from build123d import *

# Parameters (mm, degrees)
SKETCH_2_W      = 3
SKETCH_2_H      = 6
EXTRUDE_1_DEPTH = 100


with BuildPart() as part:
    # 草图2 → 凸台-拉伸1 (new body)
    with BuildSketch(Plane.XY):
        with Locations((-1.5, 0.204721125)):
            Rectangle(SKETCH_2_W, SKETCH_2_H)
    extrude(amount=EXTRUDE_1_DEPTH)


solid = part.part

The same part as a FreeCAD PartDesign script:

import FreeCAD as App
import Part
import Sketcher
from FreeCAD import Vector


def add_polygon(sketch, points):
    """Adds a closed chain of lines whose ends are joined by coincident constraints."""
    first, n = sketch.GeometryCount, len(points)
    for a, b in zip(points, points[1:] + points[:1]):
        sketch.addGeometry(Part.LineSegment(App.Vector(*a, 0), App.Vector(*b, 0)), False)
    for i in range(n):
        sketch.addConstraint(Sketcher.Constraint("Coincident", first + i, 2, first + (i + 1) % n, 1))

doc = App.newDocument("Part")
params = doc.addObject("Spreadsheet::Sheet", "Params")
for row, (alias, value) in enumerate([
    ("sketch1_width", "3 mm"),
    ("sketch1_height", "6 mm"),
    ("pad1_length", "100 mm"),
], start=1):
    params.set(f"A{row}", alias)
    params.set(f"B{row}", "=" + value)
    params.setAlias(f"B{row}", alias)

body = doc.addObject("PartDesign::Body", "Body")

sketch1 = body.newObject("Sketcher::SketchObject", "Sketch")
sketch1.AttachmentSupport = (doc.getObject("XY_Plane"), [""])
sketch1.MapMode = "FlatFace"
add_polygon(sketch1, [(-3, 3.2), (-3, -2.8), (0, -2.8), (0, 3.2)])
sketch1.addConstraint(Sketcher.Constraint("Vertical", 0))
sketch1.addConstraint(Sketcher.Constraint("Horizontal", 1))
sketch1.addConstraint(Sketcher.Constraint("Vertical", 2))
sketch1.addConstraint(Sketcher.Constraint("Horizontal", 3))
sketch1.addConstraint(Sketcher.Constraint("PointOnObject", 1, 2, -2))
sketch1.addConstraint(Sketcher.Constraint("DistanceX", 1, 1, 1, 2, 3.0))
sketch1.addConstraint(Sketcher.Constraint("DistanceY", 0, 2, 0, 1, 6.0))
sketch1.addConstraint(Sketcher.Constraint("DistanceY", 0, 2, -1, 1, 2.795279))
sketch1.setExpression("Constraints[9]", "Params.sketch1_width")
sketch1.setExpression("Constraints[10]", "Params.sketch1_height")
pad1 = body.newObject("PartDesign::Pad", "Pad")
pad1.Profile = sketch1
pad1.setExpression("Length", "Params.pad1_length")

doc.recompute()
